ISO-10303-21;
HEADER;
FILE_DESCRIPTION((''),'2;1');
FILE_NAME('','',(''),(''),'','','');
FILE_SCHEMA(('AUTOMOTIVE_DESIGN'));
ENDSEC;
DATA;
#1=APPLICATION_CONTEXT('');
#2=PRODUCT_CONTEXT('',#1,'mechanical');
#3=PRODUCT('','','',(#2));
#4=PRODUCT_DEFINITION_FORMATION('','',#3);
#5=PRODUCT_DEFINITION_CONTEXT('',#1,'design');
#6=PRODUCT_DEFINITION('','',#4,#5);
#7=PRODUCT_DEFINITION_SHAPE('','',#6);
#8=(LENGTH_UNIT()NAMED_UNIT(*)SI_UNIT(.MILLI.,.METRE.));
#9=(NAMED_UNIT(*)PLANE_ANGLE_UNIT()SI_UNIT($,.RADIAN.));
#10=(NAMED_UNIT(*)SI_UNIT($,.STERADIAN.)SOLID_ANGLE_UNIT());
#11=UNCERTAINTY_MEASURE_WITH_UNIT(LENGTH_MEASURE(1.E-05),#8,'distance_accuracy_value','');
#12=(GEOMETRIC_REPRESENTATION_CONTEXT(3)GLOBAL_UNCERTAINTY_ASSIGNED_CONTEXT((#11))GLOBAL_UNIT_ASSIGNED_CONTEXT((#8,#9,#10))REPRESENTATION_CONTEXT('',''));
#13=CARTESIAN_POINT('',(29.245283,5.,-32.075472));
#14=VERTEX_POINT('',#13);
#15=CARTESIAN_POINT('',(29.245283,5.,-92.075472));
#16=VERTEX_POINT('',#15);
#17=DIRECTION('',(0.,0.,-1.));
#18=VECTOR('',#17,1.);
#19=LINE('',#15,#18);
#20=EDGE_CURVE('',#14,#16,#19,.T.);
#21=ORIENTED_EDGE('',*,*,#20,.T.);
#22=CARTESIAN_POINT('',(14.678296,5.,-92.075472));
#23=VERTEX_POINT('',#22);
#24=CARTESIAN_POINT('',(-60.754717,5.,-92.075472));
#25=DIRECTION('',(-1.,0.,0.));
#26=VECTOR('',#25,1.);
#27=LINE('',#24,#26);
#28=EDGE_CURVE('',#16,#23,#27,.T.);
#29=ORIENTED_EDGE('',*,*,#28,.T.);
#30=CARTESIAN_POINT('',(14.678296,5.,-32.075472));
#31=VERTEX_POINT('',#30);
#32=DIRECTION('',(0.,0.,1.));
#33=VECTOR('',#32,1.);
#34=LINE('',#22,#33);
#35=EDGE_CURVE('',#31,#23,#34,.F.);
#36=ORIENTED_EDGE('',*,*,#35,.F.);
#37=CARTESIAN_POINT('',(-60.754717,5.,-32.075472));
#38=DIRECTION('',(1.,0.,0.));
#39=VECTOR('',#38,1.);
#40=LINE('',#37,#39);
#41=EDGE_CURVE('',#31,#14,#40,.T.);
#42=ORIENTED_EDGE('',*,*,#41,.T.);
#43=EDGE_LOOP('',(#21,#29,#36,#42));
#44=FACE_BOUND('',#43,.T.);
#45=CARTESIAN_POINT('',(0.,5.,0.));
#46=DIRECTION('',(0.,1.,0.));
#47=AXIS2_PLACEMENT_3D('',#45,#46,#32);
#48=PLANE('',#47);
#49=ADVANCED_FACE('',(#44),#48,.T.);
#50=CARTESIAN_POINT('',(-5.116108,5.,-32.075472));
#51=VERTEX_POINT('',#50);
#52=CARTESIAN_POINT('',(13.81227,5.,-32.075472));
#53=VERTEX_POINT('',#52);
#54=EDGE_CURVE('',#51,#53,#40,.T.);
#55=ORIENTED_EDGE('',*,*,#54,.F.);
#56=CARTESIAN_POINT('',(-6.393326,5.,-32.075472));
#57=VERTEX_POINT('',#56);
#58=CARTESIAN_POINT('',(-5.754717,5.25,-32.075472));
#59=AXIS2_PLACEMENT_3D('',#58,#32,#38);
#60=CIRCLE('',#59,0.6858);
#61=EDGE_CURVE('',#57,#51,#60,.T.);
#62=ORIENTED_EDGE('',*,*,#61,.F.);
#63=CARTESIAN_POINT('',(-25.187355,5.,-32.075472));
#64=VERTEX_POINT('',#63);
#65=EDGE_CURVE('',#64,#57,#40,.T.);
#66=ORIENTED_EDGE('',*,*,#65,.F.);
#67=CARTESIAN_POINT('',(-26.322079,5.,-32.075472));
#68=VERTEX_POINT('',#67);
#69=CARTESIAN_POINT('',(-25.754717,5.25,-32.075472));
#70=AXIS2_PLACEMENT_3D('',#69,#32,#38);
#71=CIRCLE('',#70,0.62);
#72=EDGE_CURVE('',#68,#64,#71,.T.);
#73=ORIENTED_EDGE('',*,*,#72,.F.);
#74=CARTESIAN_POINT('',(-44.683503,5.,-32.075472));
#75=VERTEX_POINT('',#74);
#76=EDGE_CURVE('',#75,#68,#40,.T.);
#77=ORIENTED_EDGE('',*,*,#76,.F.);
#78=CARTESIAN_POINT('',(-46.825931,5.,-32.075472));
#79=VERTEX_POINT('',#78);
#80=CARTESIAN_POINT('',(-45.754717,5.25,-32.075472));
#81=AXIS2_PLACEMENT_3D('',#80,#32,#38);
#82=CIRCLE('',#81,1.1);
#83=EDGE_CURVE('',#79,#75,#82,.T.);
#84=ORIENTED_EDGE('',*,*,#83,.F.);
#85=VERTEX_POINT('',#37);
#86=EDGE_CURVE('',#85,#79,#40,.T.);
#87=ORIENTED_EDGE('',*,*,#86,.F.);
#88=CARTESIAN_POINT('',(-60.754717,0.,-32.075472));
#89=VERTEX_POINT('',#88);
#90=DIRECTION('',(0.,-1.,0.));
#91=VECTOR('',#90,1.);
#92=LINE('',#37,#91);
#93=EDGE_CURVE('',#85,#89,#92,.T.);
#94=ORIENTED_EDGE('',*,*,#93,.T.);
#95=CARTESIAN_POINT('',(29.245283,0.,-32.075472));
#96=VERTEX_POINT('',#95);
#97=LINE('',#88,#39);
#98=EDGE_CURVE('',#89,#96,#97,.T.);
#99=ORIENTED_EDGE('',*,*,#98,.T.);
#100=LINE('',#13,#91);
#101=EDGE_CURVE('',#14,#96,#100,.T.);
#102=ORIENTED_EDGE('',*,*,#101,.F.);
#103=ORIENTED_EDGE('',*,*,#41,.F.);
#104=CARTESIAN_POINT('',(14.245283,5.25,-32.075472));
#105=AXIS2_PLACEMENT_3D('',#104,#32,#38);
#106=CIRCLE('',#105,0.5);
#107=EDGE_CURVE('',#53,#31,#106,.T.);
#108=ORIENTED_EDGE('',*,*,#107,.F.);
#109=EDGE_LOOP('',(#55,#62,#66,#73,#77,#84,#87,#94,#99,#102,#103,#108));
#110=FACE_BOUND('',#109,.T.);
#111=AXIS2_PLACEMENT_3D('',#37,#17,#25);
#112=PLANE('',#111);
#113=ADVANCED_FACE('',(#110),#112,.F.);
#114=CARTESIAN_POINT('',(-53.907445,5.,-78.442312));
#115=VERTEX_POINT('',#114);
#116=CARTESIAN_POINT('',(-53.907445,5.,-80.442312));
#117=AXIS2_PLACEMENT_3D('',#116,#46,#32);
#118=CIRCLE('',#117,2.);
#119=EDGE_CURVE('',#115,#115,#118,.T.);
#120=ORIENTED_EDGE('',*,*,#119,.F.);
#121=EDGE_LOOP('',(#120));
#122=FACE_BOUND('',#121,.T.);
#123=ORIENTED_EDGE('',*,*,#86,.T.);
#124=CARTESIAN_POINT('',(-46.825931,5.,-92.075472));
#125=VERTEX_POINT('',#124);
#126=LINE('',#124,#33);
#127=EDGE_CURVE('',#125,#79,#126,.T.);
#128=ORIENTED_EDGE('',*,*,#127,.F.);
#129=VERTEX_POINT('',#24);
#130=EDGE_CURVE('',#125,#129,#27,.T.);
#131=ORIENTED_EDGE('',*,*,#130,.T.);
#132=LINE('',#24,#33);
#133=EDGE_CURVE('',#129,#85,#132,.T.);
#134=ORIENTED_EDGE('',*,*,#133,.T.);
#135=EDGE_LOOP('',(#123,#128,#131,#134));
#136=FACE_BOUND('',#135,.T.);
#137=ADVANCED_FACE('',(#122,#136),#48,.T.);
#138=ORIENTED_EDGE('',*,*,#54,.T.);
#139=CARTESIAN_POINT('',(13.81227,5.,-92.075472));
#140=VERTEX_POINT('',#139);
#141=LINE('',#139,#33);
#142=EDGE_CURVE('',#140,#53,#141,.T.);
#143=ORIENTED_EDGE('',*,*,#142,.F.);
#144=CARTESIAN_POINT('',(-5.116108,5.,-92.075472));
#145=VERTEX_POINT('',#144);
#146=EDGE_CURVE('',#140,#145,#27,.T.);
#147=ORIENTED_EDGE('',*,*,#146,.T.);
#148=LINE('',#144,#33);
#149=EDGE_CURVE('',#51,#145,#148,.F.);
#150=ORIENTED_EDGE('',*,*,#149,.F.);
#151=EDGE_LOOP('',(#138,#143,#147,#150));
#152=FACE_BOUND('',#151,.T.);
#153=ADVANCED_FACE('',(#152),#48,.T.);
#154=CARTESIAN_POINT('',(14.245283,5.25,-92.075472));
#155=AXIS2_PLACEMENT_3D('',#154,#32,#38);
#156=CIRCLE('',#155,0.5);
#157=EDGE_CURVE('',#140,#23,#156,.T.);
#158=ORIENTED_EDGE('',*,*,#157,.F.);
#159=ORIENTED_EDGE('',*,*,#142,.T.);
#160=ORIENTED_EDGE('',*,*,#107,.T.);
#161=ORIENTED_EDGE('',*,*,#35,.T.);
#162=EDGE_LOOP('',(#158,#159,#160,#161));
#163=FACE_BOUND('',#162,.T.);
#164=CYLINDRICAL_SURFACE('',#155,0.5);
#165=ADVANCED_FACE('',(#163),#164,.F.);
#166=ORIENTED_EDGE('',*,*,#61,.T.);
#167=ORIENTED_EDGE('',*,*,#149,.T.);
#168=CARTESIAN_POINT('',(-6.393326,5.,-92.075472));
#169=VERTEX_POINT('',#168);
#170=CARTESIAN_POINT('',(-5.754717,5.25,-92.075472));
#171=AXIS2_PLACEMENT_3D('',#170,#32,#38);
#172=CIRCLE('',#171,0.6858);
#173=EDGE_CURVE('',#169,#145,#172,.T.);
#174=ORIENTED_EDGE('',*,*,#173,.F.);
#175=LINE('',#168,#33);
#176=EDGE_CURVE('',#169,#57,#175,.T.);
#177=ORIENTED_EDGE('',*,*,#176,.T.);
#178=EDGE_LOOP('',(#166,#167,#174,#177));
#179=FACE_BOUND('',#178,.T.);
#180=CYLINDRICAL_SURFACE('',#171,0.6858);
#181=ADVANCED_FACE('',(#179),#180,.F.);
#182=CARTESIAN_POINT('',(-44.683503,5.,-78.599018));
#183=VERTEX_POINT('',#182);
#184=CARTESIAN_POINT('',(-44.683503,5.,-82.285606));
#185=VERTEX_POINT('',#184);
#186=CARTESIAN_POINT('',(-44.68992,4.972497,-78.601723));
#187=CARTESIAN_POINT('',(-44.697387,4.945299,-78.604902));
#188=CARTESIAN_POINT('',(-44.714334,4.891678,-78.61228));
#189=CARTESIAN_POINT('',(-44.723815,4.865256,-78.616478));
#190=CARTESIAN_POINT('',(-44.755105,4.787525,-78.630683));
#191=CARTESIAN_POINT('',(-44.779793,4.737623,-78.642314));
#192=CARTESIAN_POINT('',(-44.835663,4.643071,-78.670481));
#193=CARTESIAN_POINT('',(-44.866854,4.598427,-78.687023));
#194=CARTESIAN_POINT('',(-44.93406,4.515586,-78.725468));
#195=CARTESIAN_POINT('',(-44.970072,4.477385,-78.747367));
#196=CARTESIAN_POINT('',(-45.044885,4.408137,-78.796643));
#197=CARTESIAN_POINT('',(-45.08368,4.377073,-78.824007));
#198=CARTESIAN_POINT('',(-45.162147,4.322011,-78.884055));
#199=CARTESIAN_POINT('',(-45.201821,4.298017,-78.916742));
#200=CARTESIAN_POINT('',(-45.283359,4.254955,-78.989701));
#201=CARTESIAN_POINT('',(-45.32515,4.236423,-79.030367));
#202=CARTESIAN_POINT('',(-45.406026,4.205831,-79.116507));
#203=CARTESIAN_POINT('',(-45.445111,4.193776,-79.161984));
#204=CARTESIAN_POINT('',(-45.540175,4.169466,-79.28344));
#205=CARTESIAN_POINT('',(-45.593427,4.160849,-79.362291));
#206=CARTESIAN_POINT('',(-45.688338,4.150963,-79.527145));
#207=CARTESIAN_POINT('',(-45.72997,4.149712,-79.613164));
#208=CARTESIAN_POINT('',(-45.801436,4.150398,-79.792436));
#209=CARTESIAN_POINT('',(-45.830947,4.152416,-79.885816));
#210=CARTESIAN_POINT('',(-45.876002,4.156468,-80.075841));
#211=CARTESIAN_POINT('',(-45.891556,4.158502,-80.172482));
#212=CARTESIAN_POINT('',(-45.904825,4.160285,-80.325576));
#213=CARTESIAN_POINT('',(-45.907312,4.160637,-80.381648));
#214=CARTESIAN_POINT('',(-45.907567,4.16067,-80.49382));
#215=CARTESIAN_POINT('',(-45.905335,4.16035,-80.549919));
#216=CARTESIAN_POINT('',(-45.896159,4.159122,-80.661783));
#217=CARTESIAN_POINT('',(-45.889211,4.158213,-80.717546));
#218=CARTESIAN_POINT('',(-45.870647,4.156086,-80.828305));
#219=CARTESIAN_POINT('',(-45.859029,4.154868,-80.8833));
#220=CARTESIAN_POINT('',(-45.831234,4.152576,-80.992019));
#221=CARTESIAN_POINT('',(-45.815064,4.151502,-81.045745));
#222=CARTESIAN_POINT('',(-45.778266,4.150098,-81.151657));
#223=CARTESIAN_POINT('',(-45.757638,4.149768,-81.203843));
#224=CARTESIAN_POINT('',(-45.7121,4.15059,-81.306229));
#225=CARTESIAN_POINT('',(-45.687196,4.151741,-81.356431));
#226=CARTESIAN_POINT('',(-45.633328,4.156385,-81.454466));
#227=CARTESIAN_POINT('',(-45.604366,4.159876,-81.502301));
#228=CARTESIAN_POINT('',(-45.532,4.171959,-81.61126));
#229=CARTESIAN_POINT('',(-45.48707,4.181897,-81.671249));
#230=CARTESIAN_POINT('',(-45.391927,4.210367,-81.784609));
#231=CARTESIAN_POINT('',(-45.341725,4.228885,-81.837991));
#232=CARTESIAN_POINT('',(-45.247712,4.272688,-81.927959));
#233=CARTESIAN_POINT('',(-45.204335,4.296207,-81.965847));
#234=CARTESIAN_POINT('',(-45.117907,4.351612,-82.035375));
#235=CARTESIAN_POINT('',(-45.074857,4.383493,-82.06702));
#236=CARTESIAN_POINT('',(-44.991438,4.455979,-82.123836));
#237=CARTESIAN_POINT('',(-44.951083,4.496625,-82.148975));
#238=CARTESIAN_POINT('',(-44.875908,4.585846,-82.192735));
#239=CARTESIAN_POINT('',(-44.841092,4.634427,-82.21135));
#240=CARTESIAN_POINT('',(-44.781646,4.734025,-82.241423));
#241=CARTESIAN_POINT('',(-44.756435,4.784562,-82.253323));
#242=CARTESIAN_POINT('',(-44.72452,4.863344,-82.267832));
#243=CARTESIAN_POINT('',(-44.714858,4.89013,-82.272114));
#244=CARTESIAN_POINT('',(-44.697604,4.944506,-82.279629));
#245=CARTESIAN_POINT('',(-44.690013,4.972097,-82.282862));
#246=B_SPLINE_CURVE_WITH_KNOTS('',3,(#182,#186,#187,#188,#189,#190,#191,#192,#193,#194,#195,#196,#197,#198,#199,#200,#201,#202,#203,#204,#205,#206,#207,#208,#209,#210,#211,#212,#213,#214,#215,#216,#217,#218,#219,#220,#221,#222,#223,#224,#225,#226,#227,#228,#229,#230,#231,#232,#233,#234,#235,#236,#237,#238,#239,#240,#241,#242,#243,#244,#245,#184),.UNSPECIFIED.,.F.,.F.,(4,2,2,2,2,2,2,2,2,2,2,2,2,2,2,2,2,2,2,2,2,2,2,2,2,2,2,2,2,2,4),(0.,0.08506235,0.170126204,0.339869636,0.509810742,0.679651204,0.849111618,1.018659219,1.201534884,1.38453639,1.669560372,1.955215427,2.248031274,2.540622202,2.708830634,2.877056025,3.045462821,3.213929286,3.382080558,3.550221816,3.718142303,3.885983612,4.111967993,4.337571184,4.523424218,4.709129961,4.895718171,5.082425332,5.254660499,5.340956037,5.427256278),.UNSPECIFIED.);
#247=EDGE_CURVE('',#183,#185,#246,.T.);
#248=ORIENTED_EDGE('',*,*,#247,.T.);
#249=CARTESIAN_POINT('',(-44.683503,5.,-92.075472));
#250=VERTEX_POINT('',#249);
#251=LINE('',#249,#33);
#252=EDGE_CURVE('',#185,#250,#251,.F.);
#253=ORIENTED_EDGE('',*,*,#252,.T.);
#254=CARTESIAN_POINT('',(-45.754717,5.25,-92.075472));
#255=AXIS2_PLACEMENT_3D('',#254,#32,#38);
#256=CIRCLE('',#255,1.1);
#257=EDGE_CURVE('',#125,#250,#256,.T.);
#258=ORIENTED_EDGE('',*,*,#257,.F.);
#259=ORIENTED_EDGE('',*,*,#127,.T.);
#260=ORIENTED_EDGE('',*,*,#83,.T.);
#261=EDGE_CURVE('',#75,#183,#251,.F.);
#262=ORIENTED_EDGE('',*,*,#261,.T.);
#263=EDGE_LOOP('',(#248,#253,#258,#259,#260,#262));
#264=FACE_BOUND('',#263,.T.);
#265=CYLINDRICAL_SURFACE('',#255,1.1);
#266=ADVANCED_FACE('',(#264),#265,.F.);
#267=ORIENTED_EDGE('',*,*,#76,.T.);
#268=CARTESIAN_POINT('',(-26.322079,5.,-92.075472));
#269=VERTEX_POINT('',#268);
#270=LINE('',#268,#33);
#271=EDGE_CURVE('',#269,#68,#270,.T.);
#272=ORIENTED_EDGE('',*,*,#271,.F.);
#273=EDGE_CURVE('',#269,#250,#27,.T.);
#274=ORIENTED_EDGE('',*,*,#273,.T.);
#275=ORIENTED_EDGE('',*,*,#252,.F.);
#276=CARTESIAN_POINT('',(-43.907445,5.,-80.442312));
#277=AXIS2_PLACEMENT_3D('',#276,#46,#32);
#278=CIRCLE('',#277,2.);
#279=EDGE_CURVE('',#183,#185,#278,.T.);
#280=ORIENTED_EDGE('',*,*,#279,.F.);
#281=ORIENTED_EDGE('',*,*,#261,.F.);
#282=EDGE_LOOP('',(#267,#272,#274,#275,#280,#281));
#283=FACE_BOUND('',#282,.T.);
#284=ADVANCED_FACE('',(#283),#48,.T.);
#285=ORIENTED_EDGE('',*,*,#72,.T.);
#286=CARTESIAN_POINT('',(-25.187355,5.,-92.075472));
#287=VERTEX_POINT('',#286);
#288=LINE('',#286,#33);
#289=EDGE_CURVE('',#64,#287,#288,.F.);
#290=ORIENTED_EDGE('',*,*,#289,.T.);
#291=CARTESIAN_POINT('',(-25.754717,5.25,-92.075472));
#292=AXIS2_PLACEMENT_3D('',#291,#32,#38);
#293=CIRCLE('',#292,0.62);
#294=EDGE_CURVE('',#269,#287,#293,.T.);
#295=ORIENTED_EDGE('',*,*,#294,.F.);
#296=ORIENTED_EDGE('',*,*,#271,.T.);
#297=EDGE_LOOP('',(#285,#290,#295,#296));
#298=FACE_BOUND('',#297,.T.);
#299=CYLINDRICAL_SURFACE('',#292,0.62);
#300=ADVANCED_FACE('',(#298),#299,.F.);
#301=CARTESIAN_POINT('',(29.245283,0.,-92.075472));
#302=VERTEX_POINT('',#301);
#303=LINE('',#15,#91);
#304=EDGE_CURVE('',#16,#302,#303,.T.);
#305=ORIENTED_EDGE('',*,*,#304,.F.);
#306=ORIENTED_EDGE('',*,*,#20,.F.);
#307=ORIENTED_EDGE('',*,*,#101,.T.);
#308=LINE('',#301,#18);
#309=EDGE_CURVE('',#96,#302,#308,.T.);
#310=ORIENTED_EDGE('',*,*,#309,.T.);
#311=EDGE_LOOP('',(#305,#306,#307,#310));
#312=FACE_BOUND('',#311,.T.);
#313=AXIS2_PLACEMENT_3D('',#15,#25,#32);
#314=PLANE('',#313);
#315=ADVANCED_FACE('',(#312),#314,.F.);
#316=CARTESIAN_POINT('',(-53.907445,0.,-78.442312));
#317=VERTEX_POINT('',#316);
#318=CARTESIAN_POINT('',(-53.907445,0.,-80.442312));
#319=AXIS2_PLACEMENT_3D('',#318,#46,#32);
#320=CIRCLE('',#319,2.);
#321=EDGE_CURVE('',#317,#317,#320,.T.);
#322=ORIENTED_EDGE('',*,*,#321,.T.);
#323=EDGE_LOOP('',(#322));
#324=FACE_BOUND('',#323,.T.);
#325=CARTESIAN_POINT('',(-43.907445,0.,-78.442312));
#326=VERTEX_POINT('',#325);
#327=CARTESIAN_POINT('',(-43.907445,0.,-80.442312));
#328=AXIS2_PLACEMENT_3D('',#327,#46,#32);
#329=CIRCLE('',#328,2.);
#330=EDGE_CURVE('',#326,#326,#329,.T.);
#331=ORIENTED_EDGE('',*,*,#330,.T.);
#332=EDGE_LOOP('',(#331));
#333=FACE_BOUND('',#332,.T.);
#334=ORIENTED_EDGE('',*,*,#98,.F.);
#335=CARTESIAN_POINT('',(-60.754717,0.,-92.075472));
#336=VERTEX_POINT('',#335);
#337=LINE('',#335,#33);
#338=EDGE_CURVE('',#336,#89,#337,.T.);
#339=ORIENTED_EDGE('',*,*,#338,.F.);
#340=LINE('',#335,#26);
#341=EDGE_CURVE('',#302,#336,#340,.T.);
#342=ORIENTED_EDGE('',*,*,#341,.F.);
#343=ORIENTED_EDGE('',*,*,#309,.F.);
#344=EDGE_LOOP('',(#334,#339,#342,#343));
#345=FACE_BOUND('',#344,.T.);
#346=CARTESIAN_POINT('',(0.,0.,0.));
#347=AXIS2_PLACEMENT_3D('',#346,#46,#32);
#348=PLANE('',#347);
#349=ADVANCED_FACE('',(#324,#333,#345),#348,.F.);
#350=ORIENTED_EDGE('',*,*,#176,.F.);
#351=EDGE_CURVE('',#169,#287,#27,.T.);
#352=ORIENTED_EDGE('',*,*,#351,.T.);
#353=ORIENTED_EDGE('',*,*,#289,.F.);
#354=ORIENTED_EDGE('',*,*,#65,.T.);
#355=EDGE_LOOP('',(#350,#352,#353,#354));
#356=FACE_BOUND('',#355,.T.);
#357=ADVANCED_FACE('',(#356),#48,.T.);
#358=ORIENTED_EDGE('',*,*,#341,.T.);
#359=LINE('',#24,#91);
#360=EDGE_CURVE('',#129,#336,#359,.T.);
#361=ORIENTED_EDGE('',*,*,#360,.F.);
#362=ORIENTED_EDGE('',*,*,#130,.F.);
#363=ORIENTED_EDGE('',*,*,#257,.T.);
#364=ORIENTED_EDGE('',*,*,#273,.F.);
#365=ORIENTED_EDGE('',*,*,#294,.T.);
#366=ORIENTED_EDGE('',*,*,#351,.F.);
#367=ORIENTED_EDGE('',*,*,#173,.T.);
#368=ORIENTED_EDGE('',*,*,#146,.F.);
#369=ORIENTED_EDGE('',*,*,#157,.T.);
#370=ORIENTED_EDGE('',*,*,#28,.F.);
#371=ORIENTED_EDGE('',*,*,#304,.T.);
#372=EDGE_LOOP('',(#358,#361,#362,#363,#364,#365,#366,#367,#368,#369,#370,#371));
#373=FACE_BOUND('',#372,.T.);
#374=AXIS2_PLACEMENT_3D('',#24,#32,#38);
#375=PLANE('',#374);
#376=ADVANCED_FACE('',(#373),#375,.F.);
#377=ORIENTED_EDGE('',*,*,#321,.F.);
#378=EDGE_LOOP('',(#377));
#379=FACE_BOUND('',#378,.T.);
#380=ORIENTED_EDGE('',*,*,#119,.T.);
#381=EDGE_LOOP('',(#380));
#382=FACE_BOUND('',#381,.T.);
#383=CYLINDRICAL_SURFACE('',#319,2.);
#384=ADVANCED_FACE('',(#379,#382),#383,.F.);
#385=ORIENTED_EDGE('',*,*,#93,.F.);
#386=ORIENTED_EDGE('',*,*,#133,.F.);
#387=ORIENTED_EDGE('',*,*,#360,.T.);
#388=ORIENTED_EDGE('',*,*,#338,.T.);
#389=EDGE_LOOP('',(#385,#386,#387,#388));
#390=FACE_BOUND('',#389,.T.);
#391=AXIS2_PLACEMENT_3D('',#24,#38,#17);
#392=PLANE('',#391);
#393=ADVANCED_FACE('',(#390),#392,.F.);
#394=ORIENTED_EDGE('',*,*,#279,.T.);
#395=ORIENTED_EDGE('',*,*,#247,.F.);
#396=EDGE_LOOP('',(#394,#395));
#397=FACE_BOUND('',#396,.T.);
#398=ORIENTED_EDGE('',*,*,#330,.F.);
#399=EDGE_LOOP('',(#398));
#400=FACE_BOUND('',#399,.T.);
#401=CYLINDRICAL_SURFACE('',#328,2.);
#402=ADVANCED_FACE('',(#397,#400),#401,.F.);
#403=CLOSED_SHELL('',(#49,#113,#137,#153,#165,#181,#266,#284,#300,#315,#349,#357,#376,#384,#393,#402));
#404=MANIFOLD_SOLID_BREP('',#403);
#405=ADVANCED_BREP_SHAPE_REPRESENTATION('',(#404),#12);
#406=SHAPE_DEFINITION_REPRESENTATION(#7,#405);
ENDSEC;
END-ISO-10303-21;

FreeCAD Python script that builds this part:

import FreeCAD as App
import Part
import Sketcher


def add_polygon(sketch, points):
    """Adds a closed chain of lines whose ends are joined by coincident constraints."""
    first, n = sketch.GeometryCount, len(points)
    for a, b in zip(points, points[1:] + points[:1]):
        sketch.addGeometry(Part.LineSegment(App.Vector(*a, 0), App.Vector(*b, 0)), False)
    for i in range(n):
        sketch.addConstraint(Sketcher.Constraint("Coincident", first + i, 2, first + (i + 1) % n, 1))

doc = App.newDocument("Part")
params = doc.addObject("Spreadsheet::Sheet", "Params")
for row, (alias, value) in enumerate([
    ("sketch1_width", "90 mm"),
    ("sketch1_height", "60 mm"),
    ("pad1_length", "5 mm"),
    ("sketch2_diameter", "1 mm"),
    ("sketch2_diameter2", "2.2 mm"),
    ("sketch2_diameter3", "1.24 mm"),
    ("sketch3_diameter", "4 mm"),
], start=1):
    params.set(f"A{row}", alias)
    params.set(f"B{row}", "=" + value)
    params.setAlias(f"B{row}", alias)

body = doc.addObject("PartDesign::Body", "Body")

# Sketch on XZ plane
sketch1 = body.newObject("Sketcher::SketchObject", "Sketch")
sketch1.AttachmentSupport = (doc.getObject("XZ_Plane"), [""])
sketch1.MapMode = "FlatFace"
add_polygon(sketch1, [(-61, -92), (-61, -32), (29, -32), (29, -92)])  # lines 0-3
sketch1.addConstraint([
    Sketcher.Constraint("Vertical", 0),
    Sketcher.Constraint("Horizontal", 1),
    Sketcher.Constraint("Vertical", 2),
    Sketcher.Constraint("Horizontal", 3),
    Sketcher.Constraint("DistanceX", 1, 1, 1, 2, 90.0),
    Sketcher.Constraint("DistanceY", 0, 1, 0, 2, 60.0),
    Sketcher.Constraint("DistanceY", 0, 2, -1, 1, 32.075472),
    Sketcher.Constraint("DistanceX", 0, 2, -1, 1, 60.754717),
])
sketch1.setExpression("Constraints[8]", "Params.sketch1_width")
sketch1.setExpression("Constraints[9]", "Params.sketch1_height")
pad1 = body.newObject("PartDesign::Pad", "Pad")
pad1.Profile = sketch1
pad1.setExpression("Length", "Params.pad1_length")
pad1.Reversed = True

# Sketch on XY plane
sketch2 = body.newObject("Sketcher::SketchObject", "Sketch001")
sketch2.AttachmentSupport = (doc.getObject("XY_Plane"), [""])
sketch2.MapMode = "FlatFace"
sketch2.AttachmentOffset = App.Placement(App.Vector(0, 0, -32.075472), App.Rotation())
sketch2.addGeometry([
    Part.Circle(App.Vector(-45.8, 5.2, 0), App.Vector(0, 0, 1), 1.1),
    Part.Circle(App.Vector(-25.8, 5.2, 0), App.Vector(0, 0, 1), 0.6),
    Part.Circle(App.Vector(-5.8, 5.2, 0), App.Vector(0, 0, 1), 0.7),
    Part.Circle(App.Vector(14.2, 5.2, 0), App.Vector(0, 0, 1), 0.5),
], False)
sketch2.addConstraint([
    Sketcher.Constraint("Horizontal", 0, 3, 1, 3),
    Sketcher.Constraint("Horizontal", 1, 3, 2, 3),
    Sketcher.Constraint("Horizontal", 2, 3, 3, 3),
    Sketcher.Constraint("Diameter", 3, 1.0),
    Sketcher.Constraint("Diameter", 0, 2.2),
    Sketcher.Constraint("Diameter", 1, 1.24),
    Sketcher.Constraint("DistanceX", 0, 3, 1, 3, 20.0),
    Sketcher.Constraint("DistanceX", 1, 3, 2, 3, 20.0),
    Sketcher.Constraint("DistanceX", 2, 3, 3, 3, 20.0),
    Sketcher.Constraint("Diameter", 2, 1.3716),
    Sketcher.Constraint("DistanceY", -1, 1, 0, 3, 5.25),
    Sketcher.Constraint("DistanceX", 0, 3, -1, 1, 45.754717),
])
sketch2.setExpression("Constraints[3]", "Params.sketch2_diameter")
sketch2.setExpression("Constraints[4]", "Params.sketch2_diameter2")
sketch2.setExpression("Constraints[5]", "Params.sketch2_diameter3")
pocket1 = body.newObject("PartDesign::Pocket", "Pocket")
pocket1.Profile = sketch2
pocket1.Type = "ThroughAll"

# Sketch on XZ plane
sketch3 = body.newObject("Sketcher::SketchObject", "Sketch002")
sketch3.AttachmentSupport = (doc.getObject("XZ_Plane"), [""])
sketch3.MapMode = "FlatFace"
sketch3.AttachmentOffset = App.Placement(App.Vector(0, 0, -5), App.Rotation())
sketch3.addGeometry([
    Part.Circle(App.Vector(-53.9, -80.4, 0), App.Vector(0, 0, 1), 2),
    Part.Circle(App.Vector(-43.9, -80.4, 0), App.Vector(0, 0, 1), 2),
], False)
sketch3.addConstraint([
    Sketcher.Constraint("Equal", 0, 1),
    Sketcher.Constraint("Horizontal", 0, 3, 1, 3),
    Sketcher.Constraint("Diameter", 0, 4.0),
    Sketcher.Constraint("DistanceX", 0, 3, 1, 3, 10.0),
    Sketcher.Constraint("DistanceY", 0, 3, -1, 1, 80.442312),
    Sketcher.Constraint("DistanceX", 0, 3, -1, 1, 53.907445),
])
sketch3.setExpression("Constraints[2]", "Params.sketch3_diameter")
pocket2 = body.newObject("PartDesign::Pocket", "Pocket001")
pocket2.Profile = sketch3
pocket2.Type = "ThroughAll"
pocket2.Reversed = True

doc.recompute()
